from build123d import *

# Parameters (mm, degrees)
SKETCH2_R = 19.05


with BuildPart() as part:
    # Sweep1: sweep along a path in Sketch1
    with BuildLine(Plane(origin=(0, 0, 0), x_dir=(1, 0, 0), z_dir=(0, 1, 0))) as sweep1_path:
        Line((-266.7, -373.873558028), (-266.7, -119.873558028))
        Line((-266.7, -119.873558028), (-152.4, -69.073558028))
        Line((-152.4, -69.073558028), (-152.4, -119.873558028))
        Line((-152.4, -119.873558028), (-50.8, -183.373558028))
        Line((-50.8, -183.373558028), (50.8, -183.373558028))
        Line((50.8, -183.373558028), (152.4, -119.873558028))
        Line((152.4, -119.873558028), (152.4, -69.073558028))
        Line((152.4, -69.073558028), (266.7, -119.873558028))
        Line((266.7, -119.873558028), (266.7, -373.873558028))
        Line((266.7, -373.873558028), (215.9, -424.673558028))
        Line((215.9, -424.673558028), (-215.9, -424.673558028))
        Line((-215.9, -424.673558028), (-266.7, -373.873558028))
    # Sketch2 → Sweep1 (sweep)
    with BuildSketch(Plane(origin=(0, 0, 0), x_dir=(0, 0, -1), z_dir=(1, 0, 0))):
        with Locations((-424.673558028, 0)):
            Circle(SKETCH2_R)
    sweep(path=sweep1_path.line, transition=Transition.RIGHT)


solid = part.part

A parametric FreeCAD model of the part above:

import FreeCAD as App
import Part
import Sketcher
from FreeCAD import Vector
Q = App.Units.Quantity

doc = App.newDocument("Part")
body = doc.addObject("PartDesign::Body", "Body")

sketch1 = body.newObject("Sketcher::SketchObject", "Sketch")
sketch1.AttachmentSupport = (doc.getObject("YZ_Plane"), [""])
sketch1.MapMode = "FlatFace"
sketch1.addGeometry(Part.Circle(Vector(0, 424.673558, 0), Vector(0, 0, 1), 19.05), False)
sketch1.addConstraint(Sketcher.Constraint("PointOnObject", 0, 3, -2))
sketch1.addConstraint(Sketcher.Constraint("Diameter", 0, Q("1.5 in")))
sketch1.addConstraint(Sketcher.Constraint("DistanceY", -1, 1, 0, 3, Q("424.673558 mm")))

sketch2 = body.newObject("Sketcher::SketchObject", "Sketch001")
sketch2.AttachmentSupport = (doc.getObject("XZ_Plane"), [""])
sketch2.MapMode = "FlatFace"
sketch2.addGeometry(Part.LineSegment(Vector(-266.7, 373.873558, 0), Vector(-266.7, 119.873558, 0)), False)
sketch2.addGeometry(Part.LineSegment(Vector(-266.7, 119.873558, 0), Vector(-152.4, 69.073558, 0)), False)
sketch2.addGeometry(Part.LineSegment(Vector(-152.4, 69.073558, 0), Vector(-152.4, 119.873558, 0)), False)
sketch2.addGeometry(Part.LineSegment(Vector(-152.4, 119.873558, 0), Vector(-50.8, 183.373558, 0)), False)
sketch2.addGeometry(Part.LineSegment(Vector(-50.8, 183.373558, 0), Vector(50.8, 183.373558, 0)), False)
sketch2.addGeometry(Part.LineSegment(Vector(50.8, 183.373558, 0), Vector(152.4, 119.873558, 0)), False)
sketch2.addGeometry(Part.LineSegment(Vector(152.4, 119.873558, 0), Vector(152.4, 69.073558, 0)), False)
sketch2.addGeometry(Part.LineSegment(Vector(152.4, 69.073558, 0), Vector(266.7, 119.873558, 0)), False)
sketch2.addGeometry(Part.LineSegment(Vector(266.7, 119.873558, 0), Vector(266.7, 373.873558, 0)), False)
sketch2.addGeometry(Part.LineSegment(Vector(266.7, 373.873558, 0), Vector(215.9, 424.673558, 0)), False)
sketch2.addGeometry(Part.LineSegment(Vector(215.9, 424.673558, 0), Vector(-215.9, 424.673558, 0)), False)
sketch2.addGeometry(Part.LineSegment(Vector(-215.9, 424.673558, 0), Vector(-266.7, 373.873558, 0)), False)
sketch2.addConstraint(Sketcher.Constraint("Coincident", 0, 2, 1, 1))
sketch2.addConstraint(Sketcher.Constraint("Coincident", 1, 2, 2, 1))
sketch2.addConstraint(Sketcher.Constraint("Coincident", 2, 2, 3, 1))
sketch2.addConstraint(Sketcher.Constraint("Coincident", 3, 2, 4, 1))
sketch2.addConstraint(Sketcher.Constraint("Coincident", 4, 2, 5, 1))
sketch2.addConstraint(Sketcher.Constraint("Coincident", 5, 2, 6, 1))
sketch2.addConstraint(Sketcher.Constraint("Coincident", 6, 2, 7, 1))
sketch2.addConstraint(Sketcher.Constraint("Coincident", 7, 2, 8, 1))
sketch2.addConstraint(Sketcher.Constraint("Coincident", 8, 2, 9, 1))
sketch2.addConstraint(Sketcher.Constraint("Coincident", 9, 2, 10, 1))
sketch2.addConstraint(Sketcher.Constraint("Coincident", 10, 2, 11, 1))
sketch2.addConstraint(Sketcher.Constraint("Coincident", 11, 2, 0, 1))
sketch2.addConstraint(Sketcher.Constraint("Vertical", 0))
sketch2.addConstraint(Sketcher.Constraint("Vertical", 2))
sketch2.addConstraint(Sketcher.Constraint("Horizontal", 4))
sketch2.addConstraint(Sketcher.Constraint("Vertical", 6))
sketch2.addConstraint(Sketcher.Constraint("Vertical", 8))
sketch2.addConstraint(Sketcher.Constraint("Horizontal", 10))
sketch2.addConstraint(Sketcher.Constraint("Symmetric", 2, 2, 5, 2, -2))
sketch2.addConstraint(Sketcher.Constraint("Symmetric", 0, 2, 7, 2, -2))
sketch2.addConstraint(Sketcher.Constraint("Perpendicular", 9, 11))
sketch2.addConstraint(Sketcher.Constraint("Horizontal", 0, 2, 2, 2))
sketch2.addConstraint(Sketcher.Constraint("Horizontal", 1, 2, 6, 2))
sketch2.addConstraint(Sketcher.Constraint("Horizontal", 8, 2, 11, 2))
sketch2.addConstraint(Sketcher.Constraint("Equal", 3, 5))
sketch2.addConstraint(Sketcher.Constraint("Equal", 9, 11))
sketch2.addConstraint(Sketcher.Constraint("DistanceX", 4, 1, 4, 2, Q("4 in")))
sketch2.addConstraint(Sketcher.Constraint("DistanceX", 10, 2, 10, 1, Q("17 in")))
sketch2.addConstraint(Sketcher.Constraint("DistanceY", 0, 2, 0, 1, Q("10 in")))
sketch2.addConstraint(Sketcher.Constraint("DistanceY", 2, 1, 2, 2, Q("2 in")))
sketch2.addConstraint(Sketcher.Constraint("DistanceX", 1, 2, -1, 1, Q("6 in")))
sketch2.addConstraint(Sketcher.Constraint("DistanceX", 9, 2, 8, 2, Q("2 in")))
sketch2.addConstraint(Sketcher.Constraint("DistanceY", 2, 2, 3, 2, Q("2.5 in")))
sketch2.addConstraint(Sketcher.Constraint("DistanceY", -1, 1, 0, 2, Q("119.873558 mm")))
doc.recompute()

additivepipe = body.newObject("PartDesign::AdditivePipe", "AdditivePipe")
additivepipe.Profile = sketch1
additivepipe.Spine = (sketch2, ["Edge1", "Edge2", "Edge3", "Edge4", "Edge5", "Edge6", "Edge7", "Edge8", "Edge9", "Edge10", "Edge11", "Edge12"])
additivepipe.Transition = "Right corner"

doc.recompute()
